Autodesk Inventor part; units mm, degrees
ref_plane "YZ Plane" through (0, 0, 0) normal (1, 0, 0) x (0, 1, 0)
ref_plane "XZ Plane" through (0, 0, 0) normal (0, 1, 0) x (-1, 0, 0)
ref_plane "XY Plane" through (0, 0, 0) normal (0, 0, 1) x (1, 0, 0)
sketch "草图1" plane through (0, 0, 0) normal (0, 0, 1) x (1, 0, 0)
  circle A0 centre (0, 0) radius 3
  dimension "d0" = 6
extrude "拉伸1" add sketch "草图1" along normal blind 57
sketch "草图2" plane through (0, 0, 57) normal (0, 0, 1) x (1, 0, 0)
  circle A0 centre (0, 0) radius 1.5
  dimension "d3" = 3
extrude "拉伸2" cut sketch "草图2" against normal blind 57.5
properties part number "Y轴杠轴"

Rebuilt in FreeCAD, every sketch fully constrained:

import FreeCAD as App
import Part
import Sketcher
from FreeCAD import Vector

doc = App.newDocument("Part")
body = doc.addObject("PartDesign::Body", "Body")

sketch1 = body.newObject("Sketcher::SketchObject", "Sketch")
sketch1.AttachmentSupport = (doc.getObject("XY_Plane"), [""])
sketch1.MapMode = "FlatFace"
sketch1.addGeometry(Part.Circle(Vector(0, 0, 0), Vector(0, 0, 1), 3), False)
sketch1.addConstraint(Sketcher.Constraint("Coincident", 0, 3, -1, 1))
sketch1.addConstraint(Sketcher.Constraint("Diameter", 0, 6.0))
pad1 = body.newObject("PartDesign::Pad", "Pad")
pad1.Profile = sketch1
pad1.Length = 57

sketch2 = body.newObject("Sketcher::SketchObject", "Sketch001")
sketch2.AttachmentSupport = (doc.getObject("XY_Plane"), [""])
sketch2.MapMode = "FlatFace"
sketch2.AttachmentOffset = App.Placement(Vector(0, 0, 57), App.Rotation())
sketch2.addGeometry(Part.Circle(Vector(0, 0, 0), Vector(0, 0, 1), 1.5), False)
sketch2.addConstraint(Sketcher.Constraint("Coincident", 0, 3, -1, 1))
sketch2.addConstraint(Sketcher.Constraint("Diameter", 0, 3.0))
pocket1 = body.newObject("PartDesign::Pocket", "Pocket")
pocket1.Profile = sketch2
pocket1.Length = 57.5

doc.recompute()
